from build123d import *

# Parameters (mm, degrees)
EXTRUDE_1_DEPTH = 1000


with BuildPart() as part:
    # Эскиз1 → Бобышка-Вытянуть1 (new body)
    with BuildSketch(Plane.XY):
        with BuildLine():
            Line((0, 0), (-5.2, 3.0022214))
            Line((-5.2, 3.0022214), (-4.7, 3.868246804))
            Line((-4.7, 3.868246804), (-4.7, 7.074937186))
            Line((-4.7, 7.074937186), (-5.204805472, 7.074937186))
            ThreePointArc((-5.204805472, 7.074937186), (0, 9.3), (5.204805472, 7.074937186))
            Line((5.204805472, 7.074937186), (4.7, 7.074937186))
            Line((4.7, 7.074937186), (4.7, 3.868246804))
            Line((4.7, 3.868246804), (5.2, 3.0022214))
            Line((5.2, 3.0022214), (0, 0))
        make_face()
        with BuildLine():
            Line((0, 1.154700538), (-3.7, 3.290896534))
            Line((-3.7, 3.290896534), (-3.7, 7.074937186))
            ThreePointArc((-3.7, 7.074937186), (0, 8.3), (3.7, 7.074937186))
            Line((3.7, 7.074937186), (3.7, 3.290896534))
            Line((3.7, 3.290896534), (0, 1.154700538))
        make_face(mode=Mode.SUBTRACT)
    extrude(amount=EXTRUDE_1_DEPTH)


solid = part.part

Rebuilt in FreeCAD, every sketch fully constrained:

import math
import FreeCAD as App
import Part
import Sketcher
Q = App.Units.Quantity

doc = App.newDocument("Part")
params = doc.addObject("Spreadsheet::Sheet", "Params")
for row, (alias, value) in enumerate([
    ("sketch1_radius", "7.2 mm"),
    ("sketch1_radius2", "6.2 mm"),
    ("sketch1_length", "1 mm"),
    ("pad1_length", "1000 mm"),
], start=1):
    params.set(f"A{row}", alias)
    params.set(f"B{row}", "=" + value)
    params.setAlias(f"B{row}", alias)

body = doc.addObject("PartDesign::Body", "Body")

sketch1 = doc.addObject("Sketcher::SketchObject", "Sketch")
body.addObject(sketch1)
sketch1.AttachmentSupport = (doc.XY_Plane, [""])
sketch1.MapMode = "FlatFace"
sketch1.addGeometry([
    Part.LineSegment(App.Vector(-5.2, 3.002221, 0), App.Vector(0, 0, 0)),
    Part.LineSegment(App.Vector(0, 0, 0), App.Vector(5.2, 3.002221, 0)),
    Part.LineSegment(App.Vector(5.2, 3.002221, 0), App.Vector(4.7, 3.868247, 0)),
    Part.LineSegment(App.Vector(4.7, 3.868247, 0), App.Vector(4.7, 7.074937, 0)),
    Part.LineSegment(App.Vector(4.7, 7.074937, 0), App.Vector(5.204805, 7.074937, 0)),
    Part.ArcOfCircle(Part.Circle(App.Vector(0, 2.1, 0), App.Vector(0, 0, 1), 7.2), math.radians(43.706427), math.radians(136.293573)),
    Part.LineSegment(App.Vector(-5.204805, 7.074937, 0), App.Vector(-4.7, 7.074937, 0)),
    Part.LineSegment(App.Vector(-4.7, 7.074937, 0), App.Vector(-4.7, 3.868247, 0)),
    Part.LineSegment(App.Vector(-4.7, 3.868247, 0), App.Vector(-5.2, 3.002221, 0)),
    Part.LineSegment(App.Vector(0, 1.154701, 0), App.Vector(-3.7, 3.290897, 0)),
    Part.LineSegment(App.Vector(-3.7, 3.290897, 0), App.Vector(-3.7, 7.074937, 0)),
    Part.ArcOfCircle(Part.Circle(App.Vector(0, 2.1, 0), App.Vector(0, 0, 1), 6.2), math.radians(53.360786), math.radians(126.639214)),
    Part.LineSegment(App.Vector(3.7, 7.074937, 0), App.Vector(3.7, 3.290897, 0)),
    Part.LineSegment(App.Vector(3.7, 3.290897, 0), App.Vector(0, 1.154701, 0)),
], False)
sketch1.addConstraint([
    Sketcher.Constraint("Coincident", 0, 2, 1, 1),
    Sketcher.Constraint("Coincident", 1, 2, 2, 1),
    Sketcher.Constraint("Coincident", 2, 2, 3, 1),
    Sketcher.Constraint("Coincident", 3, 2, 4, 1),
    Sketcher.Constraint("Coincident", 4, 2, 5, 1),
    Sketcher.Constraint("Coincident", 5, 2, 6, 1),
    Sketcher.Constraint("Coincident", 6, 2, 7, 1),
    Sketcher.Constraint("Coincident", 7, 2, 8, 1),
    Sketcher.Constraint("Coincident", 8, 2, 0, 1),
    Sketcher.Constraint("Coincident", 9, 2, 10, 1),
    Sketcher.Constraint("Coincident", 10, 2, 11, 2),
    Sketcher.Constraint("Coincident", 11, 1, 12, 1),
    Sketcher.Constraint("Coincident", 12, 2, 13, 1),
    Sketcher.Constraint("Coincident", 13, 2, 9, 1),
    Sketcher.Constraint("Vertical", 3),
    Sketcher.Constraint("Horizontal", 4),
    Sketcher.Constraint("Horizontal", 6),
    Sketcher.Constraint("Vertical", 7),
    Sketcher.Constraint("Vertical", 10),
    Sketcher.Constraint("Vertical", 12),
    Sketcher.Constraint("Coincident", 0, 2, -1, 1),
    Sketcher.Constraint("Coincident", 11, 3, 5, 3),
    Sketcher.Constraint("Symmetric", 4, 2, 5, 2, -2),
    Sketcher.Constraint("Symmetric", 2, 2, 7, 2, -2),
    Sketcher.Constraint("Symmetric", 1, 2, 8, 2, -2),
    Sketcher.Constraint("Symmetric", 9, 2, 12, 2, -2),
    Sketcher.Constraint("PointOnObject", 13, 2, -2),
    Sketcher.Constraint("Perpendicular", 1, 2),
    Sketcher.Constraint("Perpendicular", 8, 9),
    Sketcher.Constraint("Horizontal", 6, 2, 10, 2),
    Sketcher.Constraint("Radius", 5, Q("7.2 mm")),
    Sketcher.Constraint("Radius", 11, Q("6.2 mm")),
    Sketcher.Constraint("Angle", 0, Q("-30 deg")),
    Sketcher.Constraint("Distance", 2, Q("1 mm")),
    Sketcher.Constraint("DistanceX", 7, 2, 9, 2, Q("1 mm")),
    Sketcher.Constraint("DistanceY", -1, 1, 5, 3, Q("2.1 mm")),
    Sketcher.Constraint("DistanceX", -1, 1, 1, 2, Q("5.2 mm")),
    Sketcher.Constraint("DistanceY", 10, 1, 10, 2, Q("3.784041 mm")),
])
sketch1.setExpression("Constraints[30]", "Params.sketch1_radius")
sketch1.setExpression("Constraints[31]", "Params.sketch1_radius2")
sketch1.setExpression("Constraints[33]", "Params.sketch1_length")
pad1 = doc.addObject("PartDesign::Pad", "Pad")
body.addObject(pad1)
pad1.Profile = sketch1
pad1.setExpression("Length", "Params.pad1_length")

doc.recompute()
